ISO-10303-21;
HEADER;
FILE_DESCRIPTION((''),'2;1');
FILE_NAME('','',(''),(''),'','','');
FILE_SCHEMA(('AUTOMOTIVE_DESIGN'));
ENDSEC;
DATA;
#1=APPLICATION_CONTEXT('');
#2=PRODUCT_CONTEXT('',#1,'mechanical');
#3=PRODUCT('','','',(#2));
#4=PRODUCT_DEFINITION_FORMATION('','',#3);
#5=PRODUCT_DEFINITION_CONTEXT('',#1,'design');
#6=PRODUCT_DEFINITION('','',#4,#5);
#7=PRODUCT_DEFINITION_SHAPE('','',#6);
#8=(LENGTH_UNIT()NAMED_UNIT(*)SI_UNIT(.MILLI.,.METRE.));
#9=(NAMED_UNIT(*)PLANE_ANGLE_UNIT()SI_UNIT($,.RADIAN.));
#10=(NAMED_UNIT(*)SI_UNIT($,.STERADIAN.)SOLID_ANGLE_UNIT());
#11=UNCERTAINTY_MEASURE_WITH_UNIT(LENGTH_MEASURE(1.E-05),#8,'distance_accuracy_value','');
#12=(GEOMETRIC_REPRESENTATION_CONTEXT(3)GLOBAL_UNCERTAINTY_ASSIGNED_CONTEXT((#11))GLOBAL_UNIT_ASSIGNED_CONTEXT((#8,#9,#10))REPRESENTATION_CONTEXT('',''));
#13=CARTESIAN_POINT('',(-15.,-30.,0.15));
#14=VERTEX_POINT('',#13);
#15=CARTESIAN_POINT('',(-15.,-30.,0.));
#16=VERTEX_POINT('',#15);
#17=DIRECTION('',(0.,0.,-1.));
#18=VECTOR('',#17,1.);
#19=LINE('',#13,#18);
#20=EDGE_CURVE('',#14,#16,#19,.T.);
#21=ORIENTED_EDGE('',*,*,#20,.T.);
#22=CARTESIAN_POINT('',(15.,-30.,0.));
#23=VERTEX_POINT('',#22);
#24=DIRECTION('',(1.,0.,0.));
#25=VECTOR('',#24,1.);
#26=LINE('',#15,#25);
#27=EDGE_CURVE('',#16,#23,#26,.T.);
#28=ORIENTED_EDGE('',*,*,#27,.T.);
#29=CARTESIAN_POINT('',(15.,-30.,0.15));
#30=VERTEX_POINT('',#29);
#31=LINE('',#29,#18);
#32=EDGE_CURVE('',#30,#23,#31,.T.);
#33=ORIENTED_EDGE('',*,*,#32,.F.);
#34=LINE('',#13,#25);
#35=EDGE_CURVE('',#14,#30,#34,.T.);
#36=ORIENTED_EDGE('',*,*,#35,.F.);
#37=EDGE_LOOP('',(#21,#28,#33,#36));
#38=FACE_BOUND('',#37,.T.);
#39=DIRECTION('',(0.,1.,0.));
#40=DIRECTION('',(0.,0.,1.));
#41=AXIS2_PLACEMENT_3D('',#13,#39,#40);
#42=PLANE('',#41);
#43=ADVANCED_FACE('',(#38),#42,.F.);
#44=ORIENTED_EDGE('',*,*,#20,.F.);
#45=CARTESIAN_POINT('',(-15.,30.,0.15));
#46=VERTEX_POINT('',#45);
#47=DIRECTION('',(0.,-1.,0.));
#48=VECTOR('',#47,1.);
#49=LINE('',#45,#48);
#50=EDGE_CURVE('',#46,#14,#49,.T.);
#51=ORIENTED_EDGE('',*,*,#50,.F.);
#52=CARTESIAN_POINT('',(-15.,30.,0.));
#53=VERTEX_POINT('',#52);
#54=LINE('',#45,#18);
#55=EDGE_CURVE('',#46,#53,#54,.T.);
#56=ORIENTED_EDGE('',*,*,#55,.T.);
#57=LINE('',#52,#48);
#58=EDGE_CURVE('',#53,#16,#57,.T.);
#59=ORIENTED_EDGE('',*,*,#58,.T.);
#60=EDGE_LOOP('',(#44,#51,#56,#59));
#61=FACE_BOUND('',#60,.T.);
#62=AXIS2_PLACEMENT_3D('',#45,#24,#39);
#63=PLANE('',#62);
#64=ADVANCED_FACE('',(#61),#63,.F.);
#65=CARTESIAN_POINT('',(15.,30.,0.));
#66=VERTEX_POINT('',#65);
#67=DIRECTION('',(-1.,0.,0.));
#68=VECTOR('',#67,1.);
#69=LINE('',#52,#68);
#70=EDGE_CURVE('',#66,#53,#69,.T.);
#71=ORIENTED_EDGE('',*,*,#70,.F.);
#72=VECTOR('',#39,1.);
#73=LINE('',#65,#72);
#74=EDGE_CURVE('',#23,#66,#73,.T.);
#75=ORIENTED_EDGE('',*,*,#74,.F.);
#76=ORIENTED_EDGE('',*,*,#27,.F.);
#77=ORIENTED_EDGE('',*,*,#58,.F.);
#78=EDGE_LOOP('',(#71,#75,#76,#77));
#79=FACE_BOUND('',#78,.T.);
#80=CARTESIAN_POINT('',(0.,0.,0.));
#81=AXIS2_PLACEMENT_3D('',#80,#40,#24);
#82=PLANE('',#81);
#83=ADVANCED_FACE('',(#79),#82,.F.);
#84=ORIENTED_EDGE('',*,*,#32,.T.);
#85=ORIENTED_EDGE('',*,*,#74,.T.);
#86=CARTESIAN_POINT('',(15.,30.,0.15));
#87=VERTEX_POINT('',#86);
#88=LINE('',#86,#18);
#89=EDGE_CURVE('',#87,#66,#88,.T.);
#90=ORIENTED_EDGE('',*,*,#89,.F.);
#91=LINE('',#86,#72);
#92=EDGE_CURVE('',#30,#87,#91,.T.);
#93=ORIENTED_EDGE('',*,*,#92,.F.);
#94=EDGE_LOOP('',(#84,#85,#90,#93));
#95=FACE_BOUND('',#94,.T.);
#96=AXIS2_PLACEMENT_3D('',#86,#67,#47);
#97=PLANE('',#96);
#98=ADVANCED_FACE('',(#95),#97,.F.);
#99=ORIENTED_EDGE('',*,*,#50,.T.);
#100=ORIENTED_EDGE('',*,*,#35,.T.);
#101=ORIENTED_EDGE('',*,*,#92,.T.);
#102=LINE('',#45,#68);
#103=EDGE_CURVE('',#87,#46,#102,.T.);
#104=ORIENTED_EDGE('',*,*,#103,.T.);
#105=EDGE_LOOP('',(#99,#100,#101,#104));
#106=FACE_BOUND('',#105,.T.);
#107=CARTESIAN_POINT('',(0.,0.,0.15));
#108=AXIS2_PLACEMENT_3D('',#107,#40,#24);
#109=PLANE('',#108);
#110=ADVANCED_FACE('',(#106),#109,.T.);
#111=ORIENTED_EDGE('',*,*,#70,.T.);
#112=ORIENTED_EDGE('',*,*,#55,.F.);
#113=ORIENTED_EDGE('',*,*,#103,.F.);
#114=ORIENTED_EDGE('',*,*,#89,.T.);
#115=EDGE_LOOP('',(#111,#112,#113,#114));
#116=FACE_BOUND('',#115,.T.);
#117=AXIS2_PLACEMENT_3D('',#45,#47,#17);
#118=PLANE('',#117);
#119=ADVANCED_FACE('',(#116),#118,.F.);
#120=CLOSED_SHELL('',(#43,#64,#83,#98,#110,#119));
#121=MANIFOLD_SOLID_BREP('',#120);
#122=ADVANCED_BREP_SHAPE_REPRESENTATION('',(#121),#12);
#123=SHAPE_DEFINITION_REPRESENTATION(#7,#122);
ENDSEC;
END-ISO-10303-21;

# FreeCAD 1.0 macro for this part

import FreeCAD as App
import Part
import Sketcher
from FreeCAD import Vector
Q = App.Units.Quantity

doc = App.newDocument("Part")
body = doc.addObject("PartDesign::Body", "Body")

sketch1 = doc.addObject("Sketcher::SketchObject", "Sketch")
body.addObject(sketch1)
sketch1.AttachmentSupport = (doc.XY_Plane, [""])
sketch1.MapMode = "FlatFace"
sketch1.addGeometry(Part.LineSegment(Vector(-15, 30, 0), Vector(-15, -30, 0)), False)
sketch1.addGeometry(Part.LineSegment(Vector(-15, -30, 0), Vector(15, -30, 0)), False)
sketch1.addGeometry(Part.LineSegment(Vector(15, -30, 0), Vector(15, 30, 0)), False)
sketch1.addGeometry(Part.LineSegment(Vector(15, 30, 0), Vector(-15, 30, 0)), False)
sketch1.addConstraint(Sketcher.Constraint("Coincident", 0, 2, 1, 1))
sketch1.addConstraint(Sketcher.Constraint("Coincident", 1, 2, 2, 1))
sketch1.addConstraint(Sketcher.Constraint("Coincident", 2, 2, 3, 1))
sketch1.addConstraint(Sketcher.Constraint("Coincident", 3, 2, 0, 1))
sketch1.addConstraint(Sketcher.Constraint("Vertical", 0))
sketch1.addConstraint(Sketcher.Constraint("Horizontal", 1))
sketch1.addConstraint(Sketcher.Constraint("Vertical", 2))
sketch1.addConstraint(Sketcher.Constraint("Horizontal", 3))
sketch1.addConstraint(Sketcher.Constraint("Symmetric", 0, 2, 2, 2, -1, 1))
sketch1.addConstraint(Sketcher.Constraint("DistanceX", 1, 1, 1, 2, Q("30 mm")))
sketch1.addConstraint(Sketcher.Constraint("DistanceY", 0, 2, 0, 1, Q("60 mm")))
pad1 = doc.addObject("PartDesign::Pad", "Pad")
body.addObject(pad1)
pad1.Profile = sketch1
pad1.Length = 0.15

doc.recompute()
